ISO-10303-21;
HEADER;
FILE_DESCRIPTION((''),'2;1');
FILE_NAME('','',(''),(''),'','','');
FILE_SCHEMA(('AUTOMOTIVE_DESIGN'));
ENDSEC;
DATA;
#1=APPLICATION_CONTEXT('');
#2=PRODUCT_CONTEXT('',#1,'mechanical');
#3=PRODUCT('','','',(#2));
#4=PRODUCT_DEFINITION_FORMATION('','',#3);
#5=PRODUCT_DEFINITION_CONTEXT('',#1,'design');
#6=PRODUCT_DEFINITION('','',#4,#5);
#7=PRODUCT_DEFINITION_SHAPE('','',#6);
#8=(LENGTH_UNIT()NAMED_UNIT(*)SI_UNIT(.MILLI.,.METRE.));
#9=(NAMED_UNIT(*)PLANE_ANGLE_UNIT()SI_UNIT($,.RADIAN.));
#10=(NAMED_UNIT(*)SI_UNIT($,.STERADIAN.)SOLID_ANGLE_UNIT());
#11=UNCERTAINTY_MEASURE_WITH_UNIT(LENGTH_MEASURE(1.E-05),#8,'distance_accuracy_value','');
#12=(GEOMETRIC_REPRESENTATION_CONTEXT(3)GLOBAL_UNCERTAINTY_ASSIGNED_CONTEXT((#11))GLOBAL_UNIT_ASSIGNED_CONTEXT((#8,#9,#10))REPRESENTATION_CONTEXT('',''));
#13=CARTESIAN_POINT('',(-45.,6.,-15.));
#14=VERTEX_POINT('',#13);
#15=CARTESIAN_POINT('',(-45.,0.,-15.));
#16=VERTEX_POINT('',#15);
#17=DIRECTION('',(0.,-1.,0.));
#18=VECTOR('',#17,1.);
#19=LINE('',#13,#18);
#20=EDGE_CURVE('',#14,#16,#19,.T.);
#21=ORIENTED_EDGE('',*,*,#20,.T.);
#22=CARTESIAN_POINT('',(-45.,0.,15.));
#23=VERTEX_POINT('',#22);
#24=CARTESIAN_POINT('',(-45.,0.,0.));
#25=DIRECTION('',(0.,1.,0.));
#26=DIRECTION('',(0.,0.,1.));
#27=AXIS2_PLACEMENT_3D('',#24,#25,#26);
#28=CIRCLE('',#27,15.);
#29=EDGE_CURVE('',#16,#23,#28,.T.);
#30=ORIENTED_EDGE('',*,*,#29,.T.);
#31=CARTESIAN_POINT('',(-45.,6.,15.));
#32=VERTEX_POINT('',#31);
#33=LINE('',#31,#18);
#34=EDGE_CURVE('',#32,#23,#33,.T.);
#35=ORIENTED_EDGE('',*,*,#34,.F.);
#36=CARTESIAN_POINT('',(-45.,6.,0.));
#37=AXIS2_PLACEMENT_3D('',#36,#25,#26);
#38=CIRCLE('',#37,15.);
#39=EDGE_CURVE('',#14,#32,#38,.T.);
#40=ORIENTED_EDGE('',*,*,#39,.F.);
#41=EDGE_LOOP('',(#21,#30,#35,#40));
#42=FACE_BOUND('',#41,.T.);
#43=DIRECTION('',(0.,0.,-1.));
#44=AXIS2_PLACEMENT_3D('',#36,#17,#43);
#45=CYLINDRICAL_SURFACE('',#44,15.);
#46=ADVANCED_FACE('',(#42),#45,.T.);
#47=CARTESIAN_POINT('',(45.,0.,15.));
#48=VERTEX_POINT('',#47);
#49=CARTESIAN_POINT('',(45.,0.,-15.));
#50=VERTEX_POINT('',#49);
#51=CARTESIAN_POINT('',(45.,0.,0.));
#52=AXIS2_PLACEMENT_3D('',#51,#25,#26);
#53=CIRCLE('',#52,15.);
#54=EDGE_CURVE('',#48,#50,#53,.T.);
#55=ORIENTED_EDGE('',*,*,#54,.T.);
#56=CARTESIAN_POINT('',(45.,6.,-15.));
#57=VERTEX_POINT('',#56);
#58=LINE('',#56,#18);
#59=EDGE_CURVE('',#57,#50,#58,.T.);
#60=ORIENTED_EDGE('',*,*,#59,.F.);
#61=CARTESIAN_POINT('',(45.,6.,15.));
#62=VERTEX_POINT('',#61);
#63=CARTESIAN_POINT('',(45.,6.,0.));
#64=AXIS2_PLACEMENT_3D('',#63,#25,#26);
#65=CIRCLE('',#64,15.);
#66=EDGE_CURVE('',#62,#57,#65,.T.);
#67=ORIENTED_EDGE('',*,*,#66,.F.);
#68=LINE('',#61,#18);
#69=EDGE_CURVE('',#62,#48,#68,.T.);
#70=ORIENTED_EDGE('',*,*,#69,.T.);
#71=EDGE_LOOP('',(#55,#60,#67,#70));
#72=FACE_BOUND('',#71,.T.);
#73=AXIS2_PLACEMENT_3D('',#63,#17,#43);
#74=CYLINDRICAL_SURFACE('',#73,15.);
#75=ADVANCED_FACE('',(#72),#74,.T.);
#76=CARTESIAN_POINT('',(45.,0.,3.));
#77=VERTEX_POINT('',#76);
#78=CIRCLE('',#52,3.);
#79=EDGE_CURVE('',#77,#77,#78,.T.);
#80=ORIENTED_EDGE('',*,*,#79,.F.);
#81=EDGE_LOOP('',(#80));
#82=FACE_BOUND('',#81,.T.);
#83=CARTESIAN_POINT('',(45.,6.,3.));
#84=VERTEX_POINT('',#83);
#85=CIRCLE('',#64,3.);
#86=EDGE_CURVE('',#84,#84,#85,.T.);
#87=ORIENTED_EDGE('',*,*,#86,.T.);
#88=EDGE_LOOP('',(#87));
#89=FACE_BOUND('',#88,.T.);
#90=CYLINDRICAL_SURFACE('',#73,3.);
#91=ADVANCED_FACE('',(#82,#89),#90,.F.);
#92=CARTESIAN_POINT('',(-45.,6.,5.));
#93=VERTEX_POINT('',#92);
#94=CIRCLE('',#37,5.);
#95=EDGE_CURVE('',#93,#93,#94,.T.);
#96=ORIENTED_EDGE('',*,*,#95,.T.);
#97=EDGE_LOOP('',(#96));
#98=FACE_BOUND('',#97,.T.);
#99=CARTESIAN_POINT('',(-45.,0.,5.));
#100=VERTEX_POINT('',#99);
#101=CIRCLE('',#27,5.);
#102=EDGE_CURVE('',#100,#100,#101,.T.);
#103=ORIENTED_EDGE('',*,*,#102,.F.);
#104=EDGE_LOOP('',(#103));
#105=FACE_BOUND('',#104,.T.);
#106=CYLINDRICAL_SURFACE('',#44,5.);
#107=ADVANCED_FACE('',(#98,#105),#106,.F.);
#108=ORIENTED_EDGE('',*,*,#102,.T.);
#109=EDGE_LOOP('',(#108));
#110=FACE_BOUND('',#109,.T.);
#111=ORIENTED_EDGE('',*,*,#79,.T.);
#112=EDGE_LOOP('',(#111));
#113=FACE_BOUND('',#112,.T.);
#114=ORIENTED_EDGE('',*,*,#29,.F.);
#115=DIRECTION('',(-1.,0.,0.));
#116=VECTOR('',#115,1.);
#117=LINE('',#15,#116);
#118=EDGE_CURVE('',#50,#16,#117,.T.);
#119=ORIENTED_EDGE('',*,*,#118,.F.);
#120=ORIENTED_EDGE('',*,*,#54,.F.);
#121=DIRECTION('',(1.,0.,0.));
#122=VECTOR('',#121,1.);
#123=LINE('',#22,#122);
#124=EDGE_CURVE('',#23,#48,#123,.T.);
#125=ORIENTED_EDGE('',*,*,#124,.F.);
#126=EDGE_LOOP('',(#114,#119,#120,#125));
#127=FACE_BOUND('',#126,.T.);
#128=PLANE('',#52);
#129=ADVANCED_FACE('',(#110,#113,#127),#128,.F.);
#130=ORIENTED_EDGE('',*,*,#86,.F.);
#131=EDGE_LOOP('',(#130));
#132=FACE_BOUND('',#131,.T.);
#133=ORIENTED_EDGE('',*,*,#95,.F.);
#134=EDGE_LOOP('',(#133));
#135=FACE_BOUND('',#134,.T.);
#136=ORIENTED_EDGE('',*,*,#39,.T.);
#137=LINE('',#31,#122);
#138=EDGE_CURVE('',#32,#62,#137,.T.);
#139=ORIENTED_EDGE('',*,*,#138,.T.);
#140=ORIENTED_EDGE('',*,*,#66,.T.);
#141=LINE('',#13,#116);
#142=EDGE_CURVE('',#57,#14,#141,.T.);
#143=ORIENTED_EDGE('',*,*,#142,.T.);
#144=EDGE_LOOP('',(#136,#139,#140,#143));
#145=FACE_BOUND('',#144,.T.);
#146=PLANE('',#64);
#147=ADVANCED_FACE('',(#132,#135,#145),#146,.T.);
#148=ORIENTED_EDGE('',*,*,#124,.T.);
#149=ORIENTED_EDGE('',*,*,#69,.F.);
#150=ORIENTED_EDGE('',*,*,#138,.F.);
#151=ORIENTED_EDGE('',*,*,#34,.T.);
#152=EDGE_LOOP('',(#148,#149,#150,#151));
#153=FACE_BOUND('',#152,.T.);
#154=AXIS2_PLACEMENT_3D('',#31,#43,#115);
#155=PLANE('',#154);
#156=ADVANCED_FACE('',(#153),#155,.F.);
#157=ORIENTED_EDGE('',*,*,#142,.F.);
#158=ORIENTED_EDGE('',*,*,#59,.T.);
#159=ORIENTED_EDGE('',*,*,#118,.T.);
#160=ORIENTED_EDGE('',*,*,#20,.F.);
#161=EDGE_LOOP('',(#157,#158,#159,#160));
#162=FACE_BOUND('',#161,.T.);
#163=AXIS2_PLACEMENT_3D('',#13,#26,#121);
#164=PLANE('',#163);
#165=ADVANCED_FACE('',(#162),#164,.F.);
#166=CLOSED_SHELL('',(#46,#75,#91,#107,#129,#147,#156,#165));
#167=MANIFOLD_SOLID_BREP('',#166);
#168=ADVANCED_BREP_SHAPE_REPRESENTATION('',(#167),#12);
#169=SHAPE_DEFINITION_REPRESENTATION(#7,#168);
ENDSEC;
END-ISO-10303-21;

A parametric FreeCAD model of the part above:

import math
import FreeCAD as App
import Part
import Sketcher

V = App.Vector

doc = App.newDocument("Part")
body = doc.addObject("PartDesign::Body", "Body")

# Sketch on XZ plane
sketch1 = body.newObject("Sketcher::SketchObject", "Sketch")
sketch1.AttachmentSupport = (doc.getObject("XZ_Plane"), [""])
sketch1.MapMode = "FlatFace"
sketch1.addGeometry(Part.LineSegment(V(45, -15, 0), V(-45, -15, 0)), False)
sketch1.addGeometry(Part.ArcOfCircle(Part.Circle(V(-45, 0, 0), V(0, 0, 1), 15), math.radians(90), math.radians(270)), False)
sketch1.addGeometry(Part.LineSegment(V(-45, 15, 0), V(45, 15, 0)), False)
sketch1.addGeometry(Part.ArcOfCircle(Part.Circle(V(45, 0, 0), V(0, 0, 1), 15), math.radians(-90), math.radians(90)), False)
sketch1.addGeometry(Part.Circle(V(45, 0, 0), V(0, 0, 1), 3), False)
sketch1.addGeometry(Part.Circle(V(-45, 0, 0), V(0, 0, 1), 5), False)
sketch1.addConstraint(Sketcher.Constraint("Tangent", 0, 2, 1, 2))
sketch1.addConstraint(Sketcher.Constraint("Tangent", 1, 1, 2, 1))
sketch1.addConstraint(Sketcher.Constraint("Tangent", 2, 2, 3, 2))
sketch1.addConstraint(Sketcher.Constraint("Tangent", 3, 1, 0, 1))
sketch1.addConstraint(Sketcher.Constraint("Horizontal", 0))
sketch1.addConstraint(Sketcher.Constraint("Horizontal", 2))
sketch1.addConstraint(Sketcher.Constraint("Coincident", 4, 3, 3, 3))
sketch1.addConstraint(Sketcher.Constraint("Coincident", 5, 3, 1, 3))
sketch1.addConstraint(Sketcher.Constraint("Symmetric", 1, 3, 3, 3, -1, 1))
sketch1.addConstraint(Sketcher.Constraint("Diameter", 4, 6.0))
sketch1.addConstraint(Sketcher.Constraint("Diameter", 5, 10.0))
sketch1.addConstraint(Sketcher.Constraint("Radius", 1, 15.0))
sketch1.addConstraint(Sketcher.Constraint("DistanceX", 0, 2, 0, 1, 90.0))
pad1 = body.newObject("PartDesign::Pad", "Pad")
pad1.Profile = sketch1
pad1.Length = 6
pad1.Reversed = True

doc.recompute()
